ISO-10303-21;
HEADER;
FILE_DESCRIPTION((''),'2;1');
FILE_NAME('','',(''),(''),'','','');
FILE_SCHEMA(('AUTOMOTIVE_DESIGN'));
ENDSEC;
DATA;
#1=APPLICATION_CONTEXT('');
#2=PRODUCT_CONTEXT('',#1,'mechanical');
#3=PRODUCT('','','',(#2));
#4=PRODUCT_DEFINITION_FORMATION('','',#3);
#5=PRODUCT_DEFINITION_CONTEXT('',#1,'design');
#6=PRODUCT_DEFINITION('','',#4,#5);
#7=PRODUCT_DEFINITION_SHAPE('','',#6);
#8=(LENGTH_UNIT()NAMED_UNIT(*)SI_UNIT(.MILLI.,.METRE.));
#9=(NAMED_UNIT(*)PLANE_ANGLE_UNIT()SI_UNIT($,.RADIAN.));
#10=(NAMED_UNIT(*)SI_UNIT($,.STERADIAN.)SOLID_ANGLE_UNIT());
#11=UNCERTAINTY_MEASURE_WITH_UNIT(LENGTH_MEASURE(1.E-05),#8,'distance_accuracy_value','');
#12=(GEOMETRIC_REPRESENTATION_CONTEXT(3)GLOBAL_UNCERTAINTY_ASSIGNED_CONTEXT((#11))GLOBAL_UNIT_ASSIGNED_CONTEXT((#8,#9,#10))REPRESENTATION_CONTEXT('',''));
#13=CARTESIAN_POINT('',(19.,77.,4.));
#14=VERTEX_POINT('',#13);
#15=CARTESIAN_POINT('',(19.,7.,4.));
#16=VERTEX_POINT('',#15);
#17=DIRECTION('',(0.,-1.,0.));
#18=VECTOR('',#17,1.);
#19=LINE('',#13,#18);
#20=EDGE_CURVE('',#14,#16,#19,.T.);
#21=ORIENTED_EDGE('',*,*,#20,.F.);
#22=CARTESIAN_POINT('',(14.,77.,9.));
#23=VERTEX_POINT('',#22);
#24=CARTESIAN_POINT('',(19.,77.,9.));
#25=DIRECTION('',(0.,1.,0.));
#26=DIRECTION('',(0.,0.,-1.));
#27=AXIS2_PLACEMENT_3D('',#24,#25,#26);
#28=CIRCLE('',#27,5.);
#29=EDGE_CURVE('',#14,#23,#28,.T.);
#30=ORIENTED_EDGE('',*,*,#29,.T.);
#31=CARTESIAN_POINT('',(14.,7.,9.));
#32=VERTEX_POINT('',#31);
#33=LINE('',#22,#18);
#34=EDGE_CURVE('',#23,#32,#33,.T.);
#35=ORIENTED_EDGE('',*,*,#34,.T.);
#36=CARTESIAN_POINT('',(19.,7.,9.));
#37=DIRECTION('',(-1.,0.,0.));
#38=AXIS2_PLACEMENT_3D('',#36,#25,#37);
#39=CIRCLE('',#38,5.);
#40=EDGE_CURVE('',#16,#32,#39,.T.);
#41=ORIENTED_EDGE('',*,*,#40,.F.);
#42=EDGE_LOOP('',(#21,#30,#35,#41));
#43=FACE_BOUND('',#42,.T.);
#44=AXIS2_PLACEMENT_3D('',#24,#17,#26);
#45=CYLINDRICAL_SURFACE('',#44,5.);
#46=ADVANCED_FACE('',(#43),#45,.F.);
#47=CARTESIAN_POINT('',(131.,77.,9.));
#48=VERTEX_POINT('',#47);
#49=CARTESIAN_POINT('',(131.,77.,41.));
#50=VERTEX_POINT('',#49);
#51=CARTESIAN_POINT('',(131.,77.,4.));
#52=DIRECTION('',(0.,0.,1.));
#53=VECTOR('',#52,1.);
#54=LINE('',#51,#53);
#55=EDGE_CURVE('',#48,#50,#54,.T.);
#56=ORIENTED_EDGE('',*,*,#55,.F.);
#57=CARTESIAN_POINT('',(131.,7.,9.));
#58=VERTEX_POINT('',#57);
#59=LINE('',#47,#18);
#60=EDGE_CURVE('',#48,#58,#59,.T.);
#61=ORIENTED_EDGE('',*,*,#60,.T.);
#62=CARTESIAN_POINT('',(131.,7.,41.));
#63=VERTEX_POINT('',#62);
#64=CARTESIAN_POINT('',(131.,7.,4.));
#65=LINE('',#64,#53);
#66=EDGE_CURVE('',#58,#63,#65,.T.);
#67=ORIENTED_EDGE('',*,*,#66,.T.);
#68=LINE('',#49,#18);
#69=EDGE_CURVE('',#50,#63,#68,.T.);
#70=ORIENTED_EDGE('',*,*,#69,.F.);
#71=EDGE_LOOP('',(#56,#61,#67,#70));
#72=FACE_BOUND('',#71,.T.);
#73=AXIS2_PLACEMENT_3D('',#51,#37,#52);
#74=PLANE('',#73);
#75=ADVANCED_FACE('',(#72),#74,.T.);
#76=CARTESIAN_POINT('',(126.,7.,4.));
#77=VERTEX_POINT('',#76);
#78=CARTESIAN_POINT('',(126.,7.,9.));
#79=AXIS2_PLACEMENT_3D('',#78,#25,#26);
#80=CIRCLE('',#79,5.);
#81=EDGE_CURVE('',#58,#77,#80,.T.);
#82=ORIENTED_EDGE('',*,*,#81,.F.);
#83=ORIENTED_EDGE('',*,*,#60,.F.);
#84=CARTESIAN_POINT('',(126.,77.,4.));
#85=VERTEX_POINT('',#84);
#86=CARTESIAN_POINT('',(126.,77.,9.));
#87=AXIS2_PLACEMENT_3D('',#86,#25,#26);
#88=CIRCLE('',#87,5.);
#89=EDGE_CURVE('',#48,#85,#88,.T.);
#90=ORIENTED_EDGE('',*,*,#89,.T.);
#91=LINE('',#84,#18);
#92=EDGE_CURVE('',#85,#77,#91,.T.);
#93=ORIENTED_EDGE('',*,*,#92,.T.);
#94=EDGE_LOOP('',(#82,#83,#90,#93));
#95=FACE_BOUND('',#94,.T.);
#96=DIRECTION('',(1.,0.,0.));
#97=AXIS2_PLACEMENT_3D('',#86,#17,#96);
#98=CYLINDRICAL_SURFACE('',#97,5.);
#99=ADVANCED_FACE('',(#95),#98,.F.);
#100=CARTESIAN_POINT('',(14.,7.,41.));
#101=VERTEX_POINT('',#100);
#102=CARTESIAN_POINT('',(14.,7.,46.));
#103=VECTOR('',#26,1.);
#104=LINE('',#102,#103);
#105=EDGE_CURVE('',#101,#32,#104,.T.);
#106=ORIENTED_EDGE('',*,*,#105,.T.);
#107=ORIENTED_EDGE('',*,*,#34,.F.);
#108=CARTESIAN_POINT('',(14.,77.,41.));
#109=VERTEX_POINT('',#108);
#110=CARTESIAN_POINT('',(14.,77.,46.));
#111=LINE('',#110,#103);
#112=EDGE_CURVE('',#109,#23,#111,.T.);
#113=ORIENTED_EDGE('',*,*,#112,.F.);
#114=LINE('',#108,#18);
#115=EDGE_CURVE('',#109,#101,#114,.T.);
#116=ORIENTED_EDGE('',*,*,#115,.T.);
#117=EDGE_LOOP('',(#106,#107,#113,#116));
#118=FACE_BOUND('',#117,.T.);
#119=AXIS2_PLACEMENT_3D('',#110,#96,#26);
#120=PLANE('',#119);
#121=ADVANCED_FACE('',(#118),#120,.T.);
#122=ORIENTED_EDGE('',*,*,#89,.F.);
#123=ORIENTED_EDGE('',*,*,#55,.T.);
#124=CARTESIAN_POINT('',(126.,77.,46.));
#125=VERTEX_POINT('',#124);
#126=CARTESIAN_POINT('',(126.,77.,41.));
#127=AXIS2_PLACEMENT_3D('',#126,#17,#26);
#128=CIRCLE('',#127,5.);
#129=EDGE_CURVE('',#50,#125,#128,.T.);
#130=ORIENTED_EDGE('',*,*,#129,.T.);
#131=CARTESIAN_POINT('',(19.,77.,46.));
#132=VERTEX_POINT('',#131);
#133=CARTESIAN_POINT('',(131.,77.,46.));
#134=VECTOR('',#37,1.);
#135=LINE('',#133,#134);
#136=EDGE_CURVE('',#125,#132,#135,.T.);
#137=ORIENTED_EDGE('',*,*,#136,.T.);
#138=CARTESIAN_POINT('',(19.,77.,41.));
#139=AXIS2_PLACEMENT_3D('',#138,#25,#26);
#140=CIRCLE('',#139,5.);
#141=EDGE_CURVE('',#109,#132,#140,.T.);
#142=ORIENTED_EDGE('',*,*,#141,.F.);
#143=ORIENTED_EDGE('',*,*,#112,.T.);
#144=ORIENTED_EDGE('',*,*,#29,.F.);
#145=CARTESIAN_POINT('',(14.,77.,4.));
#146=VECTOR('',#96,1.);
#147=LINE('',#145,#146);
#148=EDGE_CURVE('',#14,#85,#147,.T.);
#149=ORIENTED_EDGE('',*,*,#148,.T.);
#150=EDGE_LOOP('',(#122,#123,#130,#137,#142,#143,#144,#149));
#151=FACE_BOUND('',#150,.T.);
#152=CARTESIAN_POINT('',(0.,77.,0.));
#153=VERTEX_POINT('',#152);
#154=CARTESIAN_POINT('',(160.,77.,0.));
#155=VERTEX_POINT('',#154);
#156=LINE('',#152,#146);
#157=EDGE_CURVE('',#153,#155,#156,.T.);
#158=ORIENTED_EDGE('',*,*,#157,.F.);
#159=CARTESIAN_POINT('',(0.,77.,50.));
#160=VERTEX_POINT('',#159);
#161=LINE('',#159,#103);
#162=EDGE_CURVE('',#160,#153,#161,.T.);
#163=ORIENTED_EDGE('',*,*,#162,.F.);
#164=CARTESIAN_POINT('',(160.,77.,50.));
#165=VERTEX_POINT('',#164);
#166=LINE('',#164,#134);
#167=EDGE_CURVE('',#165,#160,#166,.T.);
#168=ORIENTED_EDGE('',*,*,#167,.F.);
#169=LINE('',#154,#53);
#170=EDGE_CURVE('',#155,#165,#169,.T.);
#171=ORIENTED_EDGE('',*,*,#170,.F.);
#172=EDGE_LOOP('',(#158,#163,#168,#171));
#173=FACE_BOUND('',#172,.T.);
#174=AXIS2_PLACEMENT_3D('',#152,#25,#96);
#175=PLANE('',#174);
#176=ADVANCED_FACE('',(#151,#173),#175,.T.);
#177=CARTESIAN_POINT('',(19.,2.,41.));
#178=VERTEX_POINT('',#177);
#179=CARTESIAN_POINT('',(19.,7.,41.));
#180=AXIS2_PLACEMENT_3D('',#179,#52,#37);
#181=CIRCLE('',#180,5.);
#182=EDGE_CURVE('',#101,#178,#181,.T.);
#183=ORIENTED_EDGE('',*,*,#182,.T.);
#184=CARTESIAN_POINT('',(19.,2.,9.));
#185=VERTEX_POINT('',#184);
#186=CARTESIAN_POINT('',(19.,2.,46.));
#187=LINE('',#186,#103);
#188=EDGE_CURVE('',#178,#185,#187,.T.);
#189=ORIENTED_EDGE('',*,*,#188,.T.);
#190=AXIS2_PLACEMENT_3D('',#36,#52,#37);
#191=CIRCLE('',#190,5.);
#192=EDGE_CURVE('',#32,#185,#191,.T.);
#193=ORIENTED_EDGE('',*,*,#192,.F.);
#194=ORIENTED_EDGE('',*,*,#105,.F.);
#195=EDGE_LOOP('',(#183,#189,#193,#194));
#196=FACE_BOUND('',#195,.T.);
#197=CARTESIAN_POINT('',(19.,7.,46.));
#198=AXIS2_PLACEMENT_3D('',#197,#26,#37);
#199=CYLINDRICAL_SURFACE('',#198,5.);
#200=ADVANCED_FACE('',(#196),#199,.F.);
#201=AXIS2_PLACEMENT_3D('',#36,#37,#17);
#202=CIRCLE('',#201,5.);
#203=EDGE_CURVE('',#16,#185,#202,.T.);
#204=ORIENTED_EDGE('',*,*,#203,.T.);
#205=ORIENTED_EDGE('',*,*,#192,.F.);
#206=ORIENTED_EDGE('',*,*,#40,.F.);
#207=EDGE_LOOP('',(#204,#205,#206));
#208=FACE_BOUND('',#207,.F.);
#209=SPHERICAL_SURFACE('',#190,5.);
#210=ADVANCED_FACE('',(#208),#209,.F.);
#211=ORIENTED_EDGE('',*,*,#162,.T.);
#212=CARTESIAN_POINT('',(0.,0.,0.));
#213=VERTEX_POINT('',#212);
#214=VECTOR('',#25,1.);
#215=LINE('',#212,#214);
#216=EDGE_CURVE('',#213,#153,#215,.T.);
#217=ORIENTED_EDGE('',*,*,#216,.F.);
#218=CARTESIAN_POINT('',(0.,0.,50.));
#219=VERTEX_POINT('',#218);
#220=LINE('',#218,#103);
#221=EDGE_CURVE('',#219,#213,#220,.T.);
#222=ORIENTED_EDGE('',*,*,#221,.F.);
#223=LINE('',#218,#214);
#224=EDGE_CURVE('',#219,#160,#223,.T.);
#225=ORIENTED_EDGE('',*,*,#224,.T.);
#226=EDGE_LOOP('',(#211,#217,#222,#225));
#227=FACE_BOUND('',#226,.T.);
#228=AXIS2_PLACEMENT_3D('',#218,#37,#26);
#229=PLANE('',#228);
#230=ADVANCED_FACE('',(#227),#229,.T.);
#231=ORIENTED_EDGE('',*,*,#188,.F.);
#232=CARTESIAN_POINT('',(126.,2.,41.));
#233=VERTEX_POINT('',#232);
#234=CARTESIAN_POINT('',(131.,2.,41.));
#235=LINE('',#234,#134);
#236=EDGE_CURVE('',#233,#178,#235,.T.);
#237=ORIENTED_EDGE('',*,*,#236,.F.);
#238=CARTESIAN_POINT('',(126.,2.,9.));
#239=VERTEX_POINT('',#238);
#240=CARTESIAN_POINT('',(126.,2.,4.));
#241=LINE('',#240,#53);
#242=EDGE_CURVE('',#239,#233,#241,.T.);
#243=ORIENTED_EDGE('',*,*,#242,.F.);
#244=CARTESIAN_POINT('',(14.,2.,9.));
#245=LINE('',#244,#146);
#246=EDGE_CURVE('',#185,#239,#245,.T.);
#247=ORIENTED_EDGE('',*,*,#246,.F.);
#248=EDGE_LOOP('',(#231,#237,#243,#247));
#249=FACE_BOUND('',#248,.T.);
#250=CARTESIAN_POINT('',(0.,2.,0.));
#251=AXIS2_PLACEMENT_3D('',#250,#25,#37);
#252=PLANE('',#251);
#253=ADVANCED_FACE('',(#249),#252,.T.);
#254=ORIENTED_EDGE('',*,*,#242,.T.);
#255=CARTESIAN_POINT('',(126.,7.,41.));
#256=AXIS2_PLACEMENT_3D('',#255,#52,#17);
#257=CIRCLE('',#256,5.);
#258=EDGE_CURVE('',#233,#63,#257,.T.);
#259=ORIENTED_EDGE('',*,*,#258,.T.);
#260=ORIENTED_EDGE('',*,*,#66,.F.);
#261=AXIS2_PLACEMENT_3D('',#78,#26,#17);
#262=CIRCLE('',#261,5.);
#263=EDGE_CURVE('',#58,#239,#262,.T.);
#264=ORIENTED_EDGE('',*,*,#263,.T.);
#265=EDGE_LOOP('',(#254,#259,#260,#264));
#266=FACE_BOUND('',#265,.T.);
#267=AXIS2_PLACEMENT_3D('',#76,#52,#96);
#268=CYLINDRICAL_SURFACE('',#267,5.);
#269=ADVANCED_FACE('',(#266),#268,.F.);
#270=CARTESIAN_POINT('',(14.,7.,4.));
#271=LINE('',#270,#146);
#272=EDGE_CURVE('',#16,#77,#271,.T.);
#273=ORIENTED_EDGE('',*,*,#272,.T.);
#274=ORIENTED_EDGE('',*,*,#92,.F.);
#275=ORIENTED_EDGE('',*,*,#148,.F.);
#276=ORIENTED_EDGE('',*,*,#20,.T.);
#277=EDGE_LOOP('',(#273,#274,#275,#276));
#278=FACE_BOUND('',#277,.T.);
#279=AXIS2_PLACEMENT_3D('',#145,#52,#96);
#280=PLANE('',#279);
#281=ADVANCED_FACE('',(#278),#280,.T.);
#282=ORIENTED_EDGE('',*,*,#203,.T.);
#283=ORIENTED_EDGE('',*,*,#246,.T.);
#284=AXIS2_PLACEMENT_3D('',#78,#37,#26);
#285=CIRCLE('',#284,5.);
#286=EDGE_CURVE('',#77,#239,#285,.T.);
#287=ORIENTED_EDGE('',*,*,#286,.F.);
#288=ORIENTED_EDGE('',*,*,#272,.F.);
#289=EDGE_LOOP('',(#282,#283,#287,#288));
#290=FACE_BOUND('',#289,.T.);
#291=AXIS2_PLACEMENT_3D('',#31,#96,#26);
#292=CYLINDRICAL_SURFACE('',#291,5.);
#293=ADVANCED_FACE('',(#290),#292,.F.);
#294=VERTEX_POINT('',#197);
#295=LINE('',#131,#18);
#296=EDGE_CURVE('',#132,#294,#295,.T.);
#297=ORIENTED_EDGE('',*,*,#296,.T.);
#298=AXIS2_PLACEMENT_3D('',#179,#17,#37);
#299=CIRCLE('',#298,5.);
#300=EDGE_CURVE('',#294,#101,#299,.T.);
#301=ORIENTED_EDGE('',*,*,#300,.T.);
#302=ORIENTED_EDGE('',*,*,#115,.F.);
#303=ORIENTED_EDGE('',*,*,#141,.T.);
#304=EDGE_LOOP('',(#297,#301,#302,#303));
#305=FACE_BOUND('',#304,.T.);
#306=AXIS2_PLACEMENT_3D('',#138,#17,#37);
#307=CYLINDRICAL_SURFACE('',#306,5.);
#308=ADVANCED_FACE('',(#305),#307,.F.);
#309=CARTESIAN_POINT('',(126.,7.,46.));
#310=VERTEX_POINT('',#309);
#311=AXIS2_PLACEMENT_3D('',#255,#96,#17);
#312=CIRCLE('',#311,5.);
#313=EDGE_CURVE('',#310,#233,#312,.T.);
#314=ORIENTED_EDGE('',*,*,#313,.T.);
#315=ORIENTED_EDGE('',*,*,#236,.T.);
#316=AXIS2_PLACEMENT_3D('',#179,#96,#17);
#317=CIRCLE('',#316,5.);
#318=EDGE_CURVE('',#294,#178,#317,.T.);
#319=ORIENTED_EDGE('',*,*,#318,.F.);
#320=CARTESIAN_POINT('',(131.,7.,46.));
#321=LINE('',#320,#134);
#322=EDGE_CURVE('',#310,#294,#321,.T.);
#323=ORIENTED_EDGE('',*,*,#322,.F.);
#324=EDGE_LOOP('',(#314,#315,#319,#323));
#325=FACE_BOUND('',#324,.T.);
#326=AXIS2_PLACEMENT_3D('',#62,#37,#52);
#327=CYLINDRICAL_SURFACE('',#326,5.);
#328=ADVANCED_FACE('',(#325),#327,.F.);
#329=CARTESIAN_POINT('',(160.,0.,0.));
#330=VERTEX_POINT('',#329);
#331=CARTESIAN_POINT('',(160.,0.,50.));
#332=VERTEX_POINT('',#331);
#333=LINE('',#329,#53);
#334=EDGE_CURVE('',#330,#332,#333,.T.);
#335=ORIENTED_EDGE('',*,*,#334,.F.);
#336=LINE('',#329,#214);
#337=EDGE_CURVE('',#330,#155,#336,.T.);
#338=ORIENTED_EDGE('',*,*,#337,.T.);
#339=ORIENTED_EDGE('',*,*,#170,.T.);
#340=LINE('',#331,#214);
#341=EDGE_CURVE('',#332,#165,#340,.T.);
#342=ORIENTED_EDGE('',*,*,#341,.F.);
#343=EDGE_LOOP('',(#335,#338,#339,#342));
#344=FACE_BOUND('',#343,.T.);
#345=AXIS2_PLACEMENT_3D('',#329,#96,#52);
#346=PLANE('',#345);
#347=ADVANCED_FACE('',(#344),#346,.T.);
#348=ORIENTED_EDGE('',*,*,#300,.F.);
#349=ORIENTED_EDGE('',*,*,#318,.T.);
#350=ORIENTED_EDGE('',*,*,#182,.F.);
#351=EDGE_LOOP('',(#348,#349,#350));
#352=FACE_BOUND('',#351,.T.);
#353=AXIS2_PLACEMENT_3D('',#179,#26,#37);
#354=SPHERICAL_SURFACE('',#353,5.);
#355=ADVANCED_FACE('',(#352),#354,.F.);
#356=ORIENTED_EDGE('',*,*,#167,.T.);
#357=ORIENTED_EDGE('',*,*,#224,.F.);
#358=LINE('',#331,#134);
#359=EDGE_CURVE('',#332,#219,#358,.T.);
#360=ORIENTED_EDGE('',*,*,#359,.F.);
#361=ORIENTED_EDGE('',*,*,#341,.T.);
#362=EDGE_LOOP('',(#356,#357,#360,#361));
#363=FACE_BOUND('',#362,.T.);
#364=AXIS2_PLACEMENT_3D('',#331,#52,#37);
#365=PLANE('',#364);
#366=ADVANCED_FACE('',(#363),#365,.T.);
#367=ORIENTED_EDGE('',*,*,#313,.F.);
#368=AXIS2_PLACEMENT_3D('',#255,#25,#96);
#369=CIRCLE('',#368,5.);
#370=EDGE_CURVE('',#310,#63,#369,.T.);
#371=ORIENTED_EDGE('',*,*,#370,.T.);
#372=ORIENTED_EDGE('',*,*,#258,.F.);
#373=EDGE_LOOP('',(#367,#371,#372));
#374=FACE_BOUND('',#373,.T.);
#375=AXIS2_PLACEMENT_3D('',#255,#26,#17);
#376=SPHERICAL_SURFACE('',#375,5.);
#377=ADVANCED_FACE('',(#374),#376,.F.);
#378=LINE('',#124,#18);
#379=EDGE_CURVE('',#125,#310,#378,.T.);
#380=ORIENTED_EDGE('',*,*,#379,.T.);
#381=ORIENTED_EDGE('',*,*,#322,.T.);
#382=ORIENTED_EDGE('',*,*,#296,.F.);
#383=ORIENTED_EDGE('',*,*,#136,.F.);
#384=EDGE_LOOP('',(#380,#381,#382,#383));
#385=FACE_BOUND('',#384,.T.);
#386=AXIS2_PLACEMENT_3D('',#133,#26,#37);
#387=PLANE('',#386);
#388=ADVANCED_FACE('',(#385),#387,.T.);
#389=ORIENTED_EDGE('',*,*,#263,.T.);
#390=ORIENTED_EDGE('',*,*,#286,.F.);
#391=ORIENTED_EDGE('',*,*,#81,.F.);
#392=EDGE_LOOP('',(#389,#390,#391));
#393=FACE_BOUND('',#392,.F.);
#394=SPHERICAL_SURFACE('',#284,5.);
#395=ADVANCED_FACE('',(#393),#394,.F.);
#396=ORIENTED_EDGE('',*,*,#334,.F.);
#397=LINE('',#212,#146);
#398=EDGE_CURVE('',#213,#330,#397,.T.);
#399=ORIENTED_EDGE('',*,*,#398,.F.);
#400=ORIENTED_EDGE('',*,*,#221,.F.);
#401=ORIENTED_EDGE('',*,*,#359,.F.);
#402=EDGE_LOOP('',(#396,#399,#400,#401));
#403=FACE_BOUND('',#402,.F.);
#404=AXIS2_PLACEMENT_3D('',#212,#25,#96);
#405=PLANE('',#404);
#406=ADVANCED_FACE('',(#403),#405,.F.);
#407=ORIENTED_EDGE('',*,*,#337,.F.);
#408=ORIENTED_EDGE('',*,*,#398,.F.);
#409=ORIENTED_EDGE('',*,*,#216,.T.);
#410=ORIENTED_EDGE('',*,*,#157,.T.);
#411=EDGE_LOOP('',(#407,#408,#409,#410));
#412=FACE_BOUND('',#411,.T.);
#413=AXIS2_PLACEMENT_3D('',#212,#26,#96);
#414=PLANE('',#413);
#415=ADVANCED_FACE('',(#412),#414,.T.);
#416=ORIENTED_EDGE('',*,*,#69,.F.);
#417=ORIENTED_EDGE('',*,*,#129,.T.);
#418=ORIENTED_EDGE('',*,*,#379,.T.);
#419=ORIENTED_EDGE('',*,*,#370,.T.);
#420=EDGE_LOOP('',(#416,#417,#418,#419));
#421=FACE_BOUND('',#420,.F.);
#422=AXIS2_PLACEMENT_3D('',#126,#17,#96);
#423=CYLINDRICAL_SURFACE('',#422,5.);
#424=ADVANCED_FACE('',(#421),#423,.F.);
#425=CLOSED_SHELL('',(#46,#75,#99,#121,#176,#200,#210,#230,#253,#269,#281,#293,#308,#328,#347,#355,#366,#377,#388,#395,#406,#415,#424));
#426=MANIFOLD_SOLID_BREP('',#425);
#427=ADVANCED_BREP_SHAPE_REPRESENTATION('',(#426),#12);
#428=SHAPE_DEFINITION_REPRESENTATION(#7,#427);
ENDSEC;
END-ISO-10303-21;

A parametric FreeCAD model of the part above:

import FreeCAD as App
import Part
import Sketcher
from FreeCAD import Vector
Q = App.Units.Quantity


def edges_at(feature, points):
    """Names of the edges that pass closest to the given points."""
    edges = feature.Shape.Edges
    near = lambda p: min(range(len(edges)), key=lambda i: edges[i].distToShape(Part.Vertex(*p))[0])
    return sorted({f"Edge{near(p) + 1}" for p in points})

doc = App.newDocument("Part")
body = doc.addObject("PartDesign::Body", "Body")

# Sketch on XZ plane
sketch1 = body.newObject("Sketcher::SketchObject", "Sketch")
sketch1.AttachmentSupport = (doc.getObject("XZ_Plane"), [""])
sketch1.MapMode = "FlatFace"
sketch1.addGeometry([
    Part.LineSegment(Vector(160, 0, 0), Vector(0, 0, 0)),
    Part.LineSegment(Vector(0, 0, 0), Vector(0, 50, 0)),
    Part.LineSegment(Vector(0, 50, 0), Vector(160, 50, 0)),
    Part.LineSegment(Vector(160, 50, 0), Vector(160, 0, 0)),
], False)
sketch1.addConstraint([
    Sketcher.Constraint("Coincident", 0, 2, 1, 1),
    Sketcher.Constraint("Coincident", 1, 2, 2, 1),
    Sketcher.Constraint("Coincident", 2, 2, 3, 1),
    Sketcher.Constraint("Coincident", 3, 2, 0, 1),
    Sketcher.Constraint("Horizontal", 0),
    Sketcher.Constraint("Vertical", 1),
    Sketcher.Constraint("Horizontal", 2),
    Sketcher.Constraint("Vertical", 3),
    Sketcher.Constraint("Coincident", 0, 2, -1, 1),
    Sketcher.Constraint("DistanceX", 0, 2, 0, 1, Q("160 mm")),
    Sketcher.Constraint("DistanceY", 1, 1, 1, 2, Q("50 mm")),
])
pad1 = body.newObject("PartDesign::Pad", "Pad")
pad1.Profile = sketch1
pad1.Length = 77
pad1.Reversed = True

# Sketch on XZ plane
sketch2 = body.newObject("Sketcher::SketchObject", "Sketch001")
sketch2.AttachmentSupport = (doc.getObject("XZ_Plane"), [""])
sketch2.MapMode = "FlatFace"
sketch2.AttachmentOffset = App.Placement(Vector(0, 0, -77), App.Rotation())
sketch2.addGeometry([
    Part.LineSegment(Vector(14, 46, 0), Vector(131, 46, 0)),
    Part.LineSegment(Vector(131, 46, 0), Vector(131, 4, 0)),
    Part.LineSegment(Vector(131, 4, 0), Vector(14, 4, 0)),
    Part.LineSegment(Vector(14, 4, 0), Vector(14, 46, 0)),
], False)
sketch2.addConstraint([
    Sketcher.Constraint("Coincident", 0, 2, 1, 1),
    Sketcher.Constraint("Coincident", 1, 2, 2, 1),
    Sketcher.Constraint("Coincident", 2, 2, 3, 1),
    Sketcher.Constraint("Coincident", 3, 2, 0, 1),
    Sketcher.Constraint("Horizontal", 0),
    Sketcher.Constraint("Vertical", 1),
    Sketcher.Constraint("Horizontal", 2),
    Sketcher.Constraint("Vertical", 3),
    Sketcher.Constraint("DistanceX", 0, 1, 0, 2, Q("117 mm")),
    Sketcher.Constraint("DistanceY", 1, 2, 1, 1, Q("42 mm")),
    Sketcher.Constraint("DistanceY", -1, 1, 1, 2, Q("4 mm")),
    Sketcher.Constraint("DistanceX", -1, 1, 2, 2, Q("14 mm")),
])
pocket1 = body.newObject("PartDesign::Pocket", "Pocket")
pocket1.Profile = sketch2
pocket1.Length = 75
pocket1.Reversed = True
doc.recompute()

fillet = body.newObject("PartDesign::Fillet", "Fillet")
fillet.Base = (pocket1, edges_at(pocket1, [
    (14, 2, 25),
    (14, 39.5, 4),
    (14, 39.5, 46),
    (72.5, 2, 4),
    (131, 39.5, 4),
    (131, 2, 25),
    (72.5, 2, 46),
    (131, 39.5, 46),
]))
fillet.Radius = 5

doc.recompute()
